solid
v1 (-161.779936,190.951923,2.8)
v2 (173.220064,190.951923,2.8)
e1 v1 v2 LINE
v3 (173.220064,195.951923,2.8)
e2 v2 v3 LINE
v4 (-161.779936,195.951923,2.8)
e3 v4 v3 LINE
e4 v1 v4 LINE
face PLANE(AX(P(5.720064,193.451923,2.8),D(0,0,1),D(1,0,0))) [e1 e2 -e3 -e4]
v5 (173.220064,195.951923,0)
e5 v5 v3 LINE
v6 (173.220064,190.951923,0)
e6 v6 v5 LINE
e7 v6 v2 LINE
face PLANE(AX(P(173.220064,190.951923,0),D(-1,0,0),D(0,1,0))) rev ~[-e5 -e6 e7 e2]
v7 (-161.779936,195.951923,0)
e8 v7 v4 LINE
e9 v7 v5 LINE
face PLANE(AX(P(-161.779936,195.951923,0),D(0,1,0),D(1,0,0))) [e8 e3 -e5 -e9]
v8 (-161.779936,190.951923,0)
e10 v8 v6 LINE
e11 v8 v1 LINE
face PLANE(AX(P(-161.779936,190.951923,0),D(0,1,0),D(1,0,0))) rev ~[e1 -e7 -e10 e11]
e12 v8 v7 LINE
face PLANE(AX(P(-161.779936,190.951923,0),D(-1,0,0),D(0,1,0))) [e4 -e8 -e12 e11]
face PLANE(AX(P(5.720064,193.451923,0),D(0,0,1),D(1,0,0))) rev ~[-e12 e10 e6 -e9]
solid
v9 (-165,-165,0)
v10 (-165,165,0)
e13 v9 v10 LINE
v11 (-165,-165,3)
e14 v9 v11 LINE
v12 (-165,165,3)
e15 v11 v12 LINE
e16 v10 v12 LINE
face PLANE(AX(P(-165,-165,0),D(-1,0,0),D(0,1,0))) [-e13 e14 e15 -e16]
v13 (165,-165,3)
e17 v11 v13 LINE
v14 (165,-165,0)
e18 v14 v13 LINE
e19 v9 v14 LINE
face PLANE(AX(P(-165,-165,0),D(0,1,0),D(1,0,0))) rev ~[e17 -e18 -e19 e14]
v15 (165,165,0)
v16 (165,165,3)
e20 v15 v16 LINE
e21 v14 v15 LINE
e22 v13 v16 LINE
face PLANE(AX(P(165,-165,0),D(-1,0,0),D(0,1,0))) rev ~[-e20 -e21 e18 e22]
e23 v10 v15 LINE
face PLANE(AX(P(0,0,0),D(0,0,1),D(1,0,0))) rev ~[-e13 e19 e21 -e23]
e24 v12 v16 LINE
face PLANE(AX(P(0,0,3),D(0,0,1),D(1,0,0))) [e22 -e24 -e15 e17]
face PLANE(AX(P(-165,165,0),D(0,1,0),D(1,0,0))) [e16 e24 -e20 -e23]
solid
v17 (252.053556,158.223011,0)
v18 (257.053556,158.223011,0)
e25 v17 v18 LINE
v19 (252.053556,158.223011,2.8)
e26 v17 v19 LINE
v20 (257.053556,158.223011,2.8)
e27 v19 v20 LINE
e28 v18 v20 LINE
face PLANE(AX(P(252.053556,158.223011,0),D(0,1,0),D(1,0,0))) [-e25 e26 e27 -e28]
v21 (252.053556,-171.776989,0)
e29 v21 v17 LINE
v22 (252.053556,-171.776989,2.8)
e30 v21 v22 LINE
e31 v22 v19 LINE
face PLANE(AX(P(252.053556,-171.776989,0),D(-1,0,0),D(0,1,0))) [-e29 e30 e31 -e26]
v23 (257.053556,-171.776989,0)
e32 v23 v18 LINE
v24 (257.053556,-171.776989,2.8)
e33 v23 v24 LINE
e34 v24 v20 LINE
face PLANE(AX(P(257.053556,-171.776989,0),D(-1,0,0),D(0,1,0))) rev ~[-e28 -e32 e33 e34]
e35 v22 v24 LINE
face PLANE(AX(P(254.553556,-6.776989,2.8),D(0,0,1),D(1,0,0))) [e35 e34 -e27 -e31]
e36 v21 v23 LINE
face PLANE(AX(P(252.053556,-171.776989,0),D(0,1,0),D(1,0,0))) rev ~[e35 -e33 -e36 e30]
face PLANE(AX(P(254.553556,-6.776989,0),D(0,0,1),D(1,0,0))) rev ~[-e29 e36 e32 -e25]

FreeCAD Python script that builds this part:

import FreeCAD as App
import Part
import Sketcher


def add_polygon(sketch, points):
    """Adds a closed chain of lines whose ends are joined by coincident constraints."""
    first, n = sketch.GeometryCount, len(points)
    for a, b in zip(points, points[1:] + points[:1]):
        sketch.addGeometry(Part.LineSegment(App.Vector(*a, 0), App.Vector(*b, 0)), False)
    for i in range(n):
        sketch.addConstraint(Sketcher.Constraint("Coincident", first + i, 2, first + (i + 1) % n, 1))

doc = App.newDocument("Part")
body = doc.addObject("PartDesign::Body", "Body")

# Sketch on XY plane
sketch1 = body.newObject("Sketcher::SketchObject", "Sketch")
sketch1.AttachmentSupport = (doc.getObject("XY_Plane"), [""])
sketch1.MapMode = "FlatFace"
add_polygon(sketch1, [(-165, 165), (-165, -165), (165, -165), (165, 165)])  # lines 0-3
sketch1.addConstraint([
    Sketcher.Constraint("Vertical", 0),
    Sketcher.Constraint("Horizontal", 1),
    Sketcher.Constraint("Vertical", 2),
    Sketcher.Constraint("Horizontal", 3),
    Sketcher.Constraint("Symmetric", 0, 2, 2, 2, -1, 1),
    Sketcher.Constraint("Equal", 3, 0),
    Sketcher.Constraint("DistanceX", 1, 1, 1, 2, 330.0),
])
pad1 = body.newObject("PartDesign::Pad", "Pad")
pad1.Profile = sketch1
pad1.Length = 3
body2 = doc.addObject("PartDesign::Body", "Body001")

# Sketch on XY plane
sketch2 = body2.newObject("Sketcher::SketchObject", "Sketch001")
sketch2.AttachmentSupport = (doc.getObject("XY_Plane001"), [""])
sketch2.MapMode = "FlatFace"
add_polygon(sketch2, [(252, 158), (252, -172), (257, -172), (257, 158)])  # lines 0-3
sketch2.addConstraint([
    Sketcher.Constraint("Vertical", 0),
    Sketcher.Constraint("Horizontal", 1),
    Sketcher.Constraint("Vertical", 2),
    Sketcher.Constraint("Horizontal", 3),
    Sketcher.Constraint("DistanceX", 1, 1, 1, 2, 5.0),
    Sketcher.Constraint("DistanceY", 0, 2, 0, 1, 330.0),
    Sketcher.Constraint("DistanceY", 0, 2, -1, 1, 171.776989),
    Sketcher.Constraint("DistanceX", -1, 1, 0, 2, 252.053556),
])
pad2 = body2.newObject("PartDesign::Pad", "Pad001")
pad2.Profile = sketch2
pad2.Length = 2.8
body3 = doc.addObject("PartDesign::Body", "Body002")

# Sketch on XY plane
sketch3 = body3.newObject("Sketcher::SketchObject", "Sketch002")
sketch3.AttachmentSupport = (doc.getObject("XY_Plane002"), [""])
sketch3.MapMode = "FlatFace"
add_polygon(sketch3, [(-162, 196), (-162, 191), (173, 191), (173, 196)])  # lines 0-3
sketch3.addConstraint([
    Sketcher.Constraint("Vertical", 0),
    Sketcher.Constraint("Horizontal", 1),
    Sketcher.Constraint("Vertical", 2),
    Sketcher.Constraint("Horizontal", 3),
    Sketcher.Constraint("DistanceX", 1, 1, 1, 2, 335.0),
    Sketcher.Constraint("DistanceY", 0, 2, 0, 1, 5.0),
    Sketcher.Constraint("DistanceX", 0, 2, -1, 1, 161.779936),
    Sketcher.Constraint("DistanceY", -1, 1, 0, 2, 190.951923),
])
pad3 = body3.newObject("PartDesign::Pad", "Pad002")
pad3.Profile = sketch3
pad3.Length = 2.8

doc.recompute()
